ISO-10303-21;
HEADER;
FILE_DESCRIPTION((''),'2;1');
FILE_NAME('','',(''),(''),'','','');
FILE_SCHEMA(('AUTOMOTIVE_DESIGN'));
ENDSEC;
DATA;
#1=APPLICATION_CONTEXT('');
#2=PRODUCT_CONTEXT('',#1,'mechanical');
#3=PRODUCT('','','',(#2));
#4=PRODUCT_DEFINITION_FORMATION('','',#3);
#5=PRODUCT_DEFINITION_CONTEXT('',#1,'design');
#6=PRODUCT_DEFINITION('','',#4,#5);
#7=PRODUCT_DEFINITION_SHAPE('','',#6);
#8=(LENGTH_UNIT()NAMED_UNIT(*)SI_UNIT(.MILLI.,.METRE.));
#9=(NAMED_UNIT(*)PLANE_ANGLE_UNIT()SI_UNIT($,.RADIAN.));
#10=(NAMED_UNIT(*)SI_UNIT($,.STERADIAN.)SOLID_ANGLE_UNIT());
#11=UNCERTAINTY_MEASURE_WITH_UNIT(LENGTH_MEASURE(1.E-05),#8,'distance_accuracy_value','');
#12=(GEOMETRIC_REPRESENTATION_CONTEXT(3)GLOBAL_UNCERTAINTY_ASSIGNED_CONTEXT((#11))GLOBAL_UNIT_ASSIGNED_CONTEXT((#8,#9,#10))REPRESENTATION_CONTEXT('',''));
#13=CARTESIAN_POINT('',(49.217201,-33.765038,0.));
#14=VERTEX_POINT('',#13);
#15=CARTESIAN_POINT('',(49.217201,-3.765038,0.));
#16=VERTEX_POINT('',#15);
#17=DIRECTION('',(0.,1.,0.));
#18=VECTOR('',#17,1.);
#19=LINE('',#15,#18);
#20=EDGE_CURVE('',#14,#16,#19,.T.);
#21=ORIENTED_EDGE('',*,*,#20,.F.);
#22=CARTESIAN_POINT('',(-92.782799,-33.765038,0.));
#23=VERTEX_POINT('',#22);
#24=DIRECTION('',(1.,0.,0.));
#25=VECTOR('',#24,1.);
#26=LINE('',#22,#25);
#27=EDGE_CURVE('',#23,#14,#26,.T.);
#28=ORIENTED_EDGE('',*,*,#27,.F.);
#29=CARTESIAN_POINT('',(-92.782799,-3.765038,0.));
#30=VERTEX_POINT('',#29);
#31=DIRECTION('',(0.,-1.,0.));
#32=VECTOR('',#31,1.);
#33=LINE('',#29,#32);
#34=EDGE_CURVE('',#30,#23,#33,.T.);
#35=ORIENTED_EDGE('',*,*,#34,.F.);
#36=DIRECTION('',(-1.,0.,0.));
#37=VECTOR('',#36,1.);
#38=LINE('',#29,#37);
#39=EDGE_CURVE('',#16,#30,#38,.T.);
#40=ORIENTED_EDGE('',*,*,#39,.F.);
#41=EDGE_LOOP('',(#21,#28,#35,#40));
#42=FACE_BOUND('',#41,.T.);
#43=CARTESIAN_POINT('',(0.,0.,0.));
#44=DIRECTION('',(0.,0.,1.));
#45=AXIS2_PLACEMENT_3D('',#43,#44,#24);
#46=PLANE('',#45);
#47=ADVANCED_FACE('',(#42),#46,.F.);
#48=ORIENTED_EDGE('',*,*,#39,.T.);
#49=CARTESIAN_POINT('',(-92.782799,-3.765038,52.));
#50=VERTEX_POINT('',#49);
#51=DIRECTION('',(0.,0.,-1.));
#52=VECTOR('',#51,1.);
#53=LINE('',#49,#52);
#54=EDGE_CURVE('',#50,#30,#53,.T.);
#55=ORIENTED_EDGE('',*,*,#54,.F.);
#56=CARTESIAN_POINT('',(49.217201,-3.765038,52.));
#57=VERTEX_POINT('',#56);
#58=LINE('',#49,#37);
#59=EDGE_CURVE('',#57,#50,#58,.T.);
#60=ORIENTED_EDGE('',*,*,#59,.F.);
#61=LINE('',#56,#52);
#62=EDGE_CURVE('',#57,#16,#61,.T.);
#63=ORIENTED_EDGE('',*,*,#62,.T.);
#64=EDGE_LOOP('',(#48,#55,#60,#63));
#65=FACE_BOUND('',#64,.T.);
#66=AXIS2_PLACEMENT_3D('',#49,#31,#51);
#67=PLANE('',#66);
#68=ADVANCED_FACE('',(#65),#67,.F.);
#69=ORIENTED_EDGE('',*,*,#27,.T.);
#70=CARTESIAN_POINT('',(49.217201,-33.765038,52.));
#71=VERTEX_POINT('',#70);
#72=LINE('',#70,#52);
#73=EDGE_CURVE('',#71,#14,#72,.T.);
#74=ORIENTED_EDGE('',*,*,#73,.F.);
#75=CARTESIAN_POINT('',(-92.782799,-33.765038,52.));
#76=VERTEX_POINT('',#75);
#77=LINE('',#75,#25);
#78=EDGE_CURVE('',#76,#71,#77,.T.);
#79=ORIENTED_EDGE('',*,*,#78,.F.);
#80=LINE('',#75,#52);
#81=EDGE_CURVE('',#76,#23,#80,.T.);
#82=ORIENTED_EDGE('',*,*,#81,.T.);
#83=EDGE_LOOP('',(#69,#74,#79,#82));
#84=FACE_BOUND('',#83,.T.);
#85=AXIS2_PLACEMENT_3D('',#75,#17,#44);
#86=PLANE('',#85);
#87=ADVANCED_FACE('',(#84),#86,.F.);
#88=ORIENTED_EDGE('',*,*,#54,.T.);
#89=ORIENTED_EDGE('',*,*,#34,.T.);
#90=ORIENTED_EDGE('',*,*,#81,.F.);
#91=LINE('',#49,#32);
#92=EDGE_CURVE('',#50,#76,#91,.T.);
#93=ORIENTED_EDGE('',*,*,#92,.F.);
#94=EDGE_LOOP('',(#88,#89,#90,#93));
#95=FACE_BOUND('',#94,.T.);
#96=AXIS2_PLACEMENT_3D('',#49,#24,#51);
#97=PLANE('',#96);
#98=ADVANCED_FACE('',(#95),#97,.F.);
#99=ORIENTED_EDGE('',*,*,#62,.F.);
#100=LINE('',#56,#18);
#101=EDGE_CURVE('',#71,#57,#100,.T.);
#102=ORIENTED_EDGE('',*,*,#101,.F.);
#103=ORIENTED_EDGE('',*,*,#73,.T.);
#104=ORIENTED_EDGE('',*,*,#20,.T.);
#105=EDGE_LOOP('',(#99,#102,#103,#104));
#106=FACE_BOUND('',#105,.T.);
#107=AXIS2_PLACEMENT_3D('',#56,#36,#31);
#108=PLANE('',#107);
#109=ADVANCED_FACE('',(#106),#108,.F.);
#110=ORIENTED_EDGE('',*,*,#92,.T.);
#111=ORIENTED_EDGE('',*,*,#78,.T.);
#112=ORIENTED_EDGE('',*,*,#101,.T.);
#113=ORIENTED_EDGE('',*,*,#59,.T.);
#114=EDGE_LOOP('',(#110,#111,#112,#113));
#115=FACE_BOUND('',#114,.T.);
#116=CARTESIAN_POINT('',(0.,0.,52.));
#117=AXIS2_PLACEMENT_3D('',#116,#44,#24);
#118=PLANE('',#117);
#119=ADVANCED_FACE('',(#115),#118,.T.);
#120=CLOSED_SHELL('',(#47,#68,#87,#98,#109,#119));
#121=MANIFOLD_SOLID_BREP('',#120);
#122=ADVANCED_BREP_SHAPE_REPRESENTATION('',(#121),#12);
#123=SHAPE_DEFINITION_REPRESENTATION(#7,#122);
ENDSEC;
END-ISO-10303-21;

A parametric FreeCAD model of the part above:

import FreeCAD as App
import Part
import Sketcher

doc = App.newDocument("Part")
body = doc.addObject("PartDesign::Body", "Body")

sketch1 = doc.addObject("Sketcher::SketchObject", "Sketch")
body.addObject(sketch1)
sketch1.AttachmentSupport = (doc.XY_Plane, [""])
sketch1.MapMode = "FlatFace"
sketch1.addGeometry([
    Part.LineSegment(App.Vector(-93, -4, 0), App.Vector(-93, -34, 0)),
    Part.LineSegment(App.Vector(-93, -34, 0), App.Vector(49, -34, 0)),
    Part.LineSegment(App.Vector(49, -34, 0), App.Vector(49, -4, 0)),
    Part.LineSegment(App.Vector(49, -4, 0), App.Vector(-93, -4, 0)),
], False)
sketch1.addConstraint([
    Sketcher.Constraint("Coincident", 0, 2, 1, 1),
    Sketcher.Constraint("Coincident", 1, 2, 2, 1),
    Sketcher.Constraint("Coincident", 2, 2, 3, 1),
    Sketcher.Constraint("Coincident", 3, 2, 0, 1),
    Sketcher.Constraint("Vertical", 0),
    Sketcher.Constraint("Horizontal", 1),
    Sketcher.Constraint("Vertical", 2),
    Sketcher.Constraint("Horizontal", 3),
    Sketcher.Constraint("DistanceX", 1, 1, 1, 2, 142.0),
    Sketcher.Constraint("DistanceY", 0, 2, 0, 1, 30.0),
    Sketcher.Constraint("DistanceX", 0, 2, -1, 1, 92.782799),
    Sketcher.Constraint("DistanceY", 0, 2, -1, 1, 33.765038),
])
pad1 = doc.addObject("PartDesign::Pad", "Pad")
body.addObject(pad1)
pad1.Profile = sketch1
pad1.Length = 52

doc.recompute()
